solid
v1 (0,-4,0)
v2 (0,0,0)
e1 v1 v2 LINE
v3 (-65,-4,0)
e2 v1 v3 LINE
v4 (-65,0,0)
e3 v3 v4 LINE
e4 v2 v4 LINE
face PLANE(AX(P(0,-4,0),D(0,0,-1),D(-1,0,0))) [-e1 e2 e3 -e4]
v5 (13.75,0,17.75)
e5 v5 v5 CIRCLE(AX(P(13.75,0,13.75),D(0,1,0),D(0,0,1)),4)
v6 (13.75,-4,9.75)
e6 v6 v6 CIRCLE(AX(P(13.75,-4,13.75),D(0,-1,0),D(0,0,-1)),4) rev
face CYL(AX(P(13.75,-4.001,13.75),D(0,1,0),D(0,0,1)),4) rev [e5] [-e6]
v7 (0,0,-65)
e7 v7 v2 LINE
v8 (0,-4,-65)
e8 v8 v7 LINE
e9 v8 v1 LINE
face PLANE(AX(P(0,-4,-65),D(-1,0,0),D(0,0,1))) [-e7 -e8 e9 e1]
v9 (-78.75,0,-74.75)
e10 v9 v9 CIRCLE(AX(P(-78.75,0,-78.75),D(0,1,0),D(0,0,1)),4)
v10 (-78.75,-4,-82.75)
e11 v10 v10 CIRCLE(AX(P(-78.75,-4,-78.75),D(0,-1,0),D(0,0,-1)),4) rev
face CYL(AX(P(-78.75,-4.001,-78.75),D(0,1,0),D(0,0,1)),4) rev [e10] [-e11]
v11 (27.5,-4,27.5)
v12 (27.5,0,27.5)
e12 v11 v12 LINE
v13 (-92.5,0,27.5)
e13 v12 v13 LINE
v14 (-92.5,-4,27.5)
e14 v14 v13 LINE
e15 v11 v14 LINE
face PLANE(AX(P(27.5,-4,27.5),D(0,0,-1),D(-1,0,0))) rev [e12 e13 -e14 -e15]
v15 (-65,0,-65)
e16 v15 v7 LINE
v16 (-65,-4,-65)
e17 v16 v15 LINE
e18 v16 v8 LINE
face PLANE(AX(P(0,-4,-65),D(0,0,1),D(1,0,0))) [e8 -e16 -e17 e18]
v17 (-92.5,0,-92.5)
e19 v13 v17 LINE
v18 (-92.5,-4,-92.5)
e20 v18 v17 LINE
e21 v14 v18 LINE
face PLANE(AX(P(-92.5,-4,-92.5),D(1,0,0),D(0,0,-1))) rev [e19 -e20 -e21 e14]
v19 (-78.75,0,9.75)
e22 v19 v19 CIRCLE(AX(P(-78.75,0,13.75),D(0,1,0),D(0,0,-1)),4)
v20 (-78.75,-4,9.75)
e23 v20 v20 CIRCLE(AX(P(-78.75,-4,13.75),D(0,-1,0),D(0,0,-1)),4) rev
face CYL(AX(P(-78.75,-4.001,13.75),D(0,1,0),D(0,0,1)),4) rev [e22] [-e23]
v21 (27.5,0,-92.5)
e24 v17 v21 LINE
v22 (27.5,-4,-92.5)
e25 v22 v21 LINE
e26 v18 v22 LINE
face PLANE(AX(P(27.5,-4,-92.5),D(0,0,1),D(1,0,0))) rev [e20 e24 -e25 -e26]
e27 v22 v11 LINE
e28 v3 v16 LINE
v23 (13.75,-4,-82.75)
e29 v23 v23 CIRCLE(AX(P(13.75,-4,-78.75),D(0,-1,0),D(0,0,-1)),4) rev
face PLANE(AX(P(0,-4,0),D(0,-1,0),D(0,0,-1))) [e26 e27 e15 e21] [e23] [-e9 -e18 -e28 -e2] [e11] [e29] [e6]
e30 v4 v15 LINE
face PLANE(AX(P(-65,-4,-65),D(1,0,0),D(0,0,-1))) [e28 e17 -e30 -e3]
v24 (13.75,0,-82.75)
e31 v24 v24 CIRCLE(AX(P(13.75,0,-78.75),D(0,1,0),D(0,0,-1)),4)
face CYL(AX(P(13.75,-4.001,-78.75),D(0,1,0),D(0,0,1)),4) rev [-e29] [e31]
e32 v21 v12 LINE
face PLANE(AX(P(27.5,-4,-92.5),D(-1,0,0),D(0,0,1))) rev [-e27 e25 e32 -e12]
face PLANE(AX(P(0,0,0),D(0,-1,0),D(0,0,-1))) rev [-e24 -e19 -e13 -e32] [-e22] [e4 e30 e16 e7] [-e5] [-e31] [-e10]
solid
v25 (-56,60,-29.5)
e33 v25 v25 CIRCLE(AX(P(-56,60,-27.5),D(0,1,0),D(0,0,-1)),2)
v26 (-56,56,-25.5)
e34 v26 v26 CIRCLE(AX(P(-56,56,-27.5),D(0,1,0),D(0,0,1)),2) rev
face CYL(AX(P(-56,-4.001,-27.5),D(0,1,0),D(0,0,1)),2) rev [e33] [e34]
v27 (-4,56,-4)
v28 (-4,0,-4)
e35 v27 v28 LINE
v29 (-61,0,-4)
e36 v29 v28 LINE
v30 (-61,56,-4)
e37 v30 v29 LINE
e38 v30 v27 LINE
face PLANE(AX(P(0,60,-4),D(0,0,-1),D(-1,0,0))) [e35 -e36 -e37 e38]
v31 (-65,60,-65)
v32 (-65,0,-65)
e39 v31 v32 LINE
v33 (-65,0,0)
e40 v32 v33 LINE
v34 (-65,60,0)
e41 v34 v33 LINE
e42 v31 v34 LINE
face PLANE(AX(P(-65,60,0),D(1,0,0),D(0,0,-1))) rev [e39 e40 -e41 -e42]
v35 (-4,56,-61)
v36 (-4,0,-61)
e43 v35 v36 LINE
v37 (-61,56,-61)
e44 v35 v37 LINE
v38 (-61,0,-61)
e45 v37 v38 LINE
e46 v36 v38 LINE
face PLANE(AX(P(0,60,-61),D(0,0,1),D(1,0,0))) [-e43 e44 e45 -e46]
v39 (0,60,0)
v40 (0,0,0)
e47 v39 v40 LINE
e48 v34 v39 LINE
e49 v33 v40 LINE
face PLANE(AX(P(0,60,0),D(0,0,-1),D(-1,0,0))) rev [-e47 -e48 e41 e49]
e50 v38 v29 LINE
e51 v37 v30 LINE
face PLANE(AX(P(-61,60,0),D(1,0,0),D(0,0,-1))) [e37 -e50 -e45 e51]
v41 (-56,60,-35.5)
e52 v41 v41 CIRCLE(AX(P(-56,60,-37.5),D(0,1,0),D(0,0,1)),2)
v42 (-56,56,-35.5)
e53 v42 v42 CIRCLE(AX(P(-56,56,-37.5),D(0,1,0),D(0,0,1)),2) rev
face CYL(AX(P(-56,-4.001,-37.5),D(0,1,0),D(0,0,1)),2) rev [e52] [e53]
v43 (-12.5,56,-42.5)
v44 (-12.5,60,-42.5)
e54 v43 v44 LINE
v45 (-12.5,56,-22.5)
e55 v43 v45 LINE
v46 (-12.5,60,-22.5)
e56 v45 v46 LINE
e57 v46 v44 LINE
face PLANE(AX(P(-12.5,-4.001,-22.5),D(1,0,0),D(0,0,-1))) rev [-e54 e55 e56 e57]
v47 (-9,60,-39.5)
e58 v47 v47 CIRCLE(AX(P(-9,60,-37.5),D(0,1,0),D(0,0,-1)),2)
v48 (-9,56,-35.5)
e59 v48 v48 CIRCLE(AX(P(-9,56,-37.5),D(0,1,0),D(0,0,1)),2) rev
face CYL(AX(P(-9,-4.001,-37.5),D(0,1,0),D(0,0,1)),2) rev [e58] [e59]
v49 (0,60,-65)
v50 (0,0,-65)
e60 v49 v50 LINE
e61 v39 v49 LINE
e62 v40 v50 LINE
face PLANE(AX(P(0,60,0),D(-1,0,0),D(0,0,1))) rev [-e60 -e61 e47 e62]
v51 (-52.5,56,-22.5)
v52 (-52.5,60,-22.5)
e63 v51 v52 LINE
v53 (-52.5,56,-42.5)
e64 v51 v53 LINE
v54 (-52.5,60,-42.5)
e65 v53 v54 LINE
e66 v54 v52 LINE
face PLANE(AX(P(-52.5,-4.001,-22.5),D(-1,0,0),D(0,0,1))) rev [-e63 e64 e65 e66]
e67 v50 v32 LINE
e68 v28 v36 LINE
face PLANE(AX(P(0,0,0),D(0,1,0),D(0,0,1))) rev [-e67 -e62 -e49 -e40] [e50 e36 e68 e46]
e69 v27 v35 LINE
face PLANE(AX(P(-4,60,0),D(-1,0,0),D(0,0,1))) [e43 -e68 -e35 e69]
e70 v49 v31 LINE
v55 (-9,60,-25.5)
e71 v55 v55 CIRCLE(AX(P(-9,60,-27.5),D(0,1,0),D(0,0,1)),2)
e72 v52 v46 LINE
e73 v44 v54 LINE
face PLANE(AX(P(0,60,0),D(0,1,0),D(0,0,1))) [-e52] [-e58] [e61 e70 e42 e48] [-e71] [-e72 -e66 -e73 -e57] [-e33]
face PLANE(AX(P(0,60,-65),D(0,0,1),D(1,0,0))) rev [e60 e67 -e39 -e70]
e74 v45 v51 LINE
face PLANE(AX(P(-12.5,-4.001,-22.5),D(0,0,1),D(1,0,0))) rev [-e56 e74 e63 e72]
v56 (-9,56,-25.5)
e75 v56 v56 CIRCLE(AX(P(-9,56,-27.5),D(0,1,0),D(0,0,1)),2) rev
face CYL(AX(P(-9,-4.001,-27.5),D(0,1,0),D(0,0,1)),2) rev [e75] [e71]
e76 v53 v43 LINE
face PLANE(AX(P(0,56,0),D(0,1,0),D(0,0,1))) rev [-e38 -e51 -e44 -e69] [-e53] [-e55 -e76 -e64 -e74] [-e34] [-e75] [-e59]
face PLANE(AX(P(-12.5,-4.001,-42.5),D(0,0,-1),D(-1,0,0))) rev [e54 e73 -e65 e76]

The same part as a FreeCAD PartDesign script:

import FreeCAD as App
import Part
import Sketcher

V = App.Vector
Q = App.Units.Quantity


def faces_at(feature, points):
    """Names of the faces that lie closest to the given points."""
    faces = feature.Shape.Faces
    near = lambda p: min(range(len(faces)), key=lambda i: faces[i].distToShape(Part.Vertex(*p))[0])
    return sorted({f"Face{near(p) + 1}" for p in points})

doc = App.newDocument("Part")
body = doc.addObject("PartDesign::Body", "Body")

sketch1 = body.newObject("Sketcher::SketchObject", "Sketch")
sketch1.AttachmentSupport = (doc.getObject("XZ_Plane"), [""])
sketch1.MapMode = "FlatFace"
sketch1.addGeometry([
    Part.LineSegment(V(-65, -65, 0), V(-65, 0, 0)),
    Part.LineSegment(V(-65, 0, 0), V(0, 0, 0)),
    Part.LineSegment(V(0, 0, 0), V(0, -65, 0)),
    Part.LineSegment(V(0, -65, 0), V(-65, -65, 0)),
], False)
sketch1.addConstraint([
    Sketcher.Constraint("Coincident", 0, 2, 1, 1),
    Sketcher.Constraint("Coincident", 1, 2, 2, 1),
    Sketcher.Constraint("Coincident", 2, 2, 3, 1),
    Sketcher.Constraint("Coincident", 3, 2, 0, 1),
    Sketcher.Constraint("Vertical", 0),
    Sketcher.Constraint("Horizontal", 1),
    Sketcher.Constraint("Vertical", 2),
    Sketcher.Constraint("Horizontal", 3),
    Sketcher.Constraint("Coincident", 1, 2, -1, 1),
    Sketcher.Constraint("Equal", 3, 0),
    Sketcher.Constraint("DistanceX", 1, 1, 1, 2, Q("65 mm")),
])
pad1 = body.newObject("PartDesign::Pad", "Pad")
pad1.Profile = sketch1
pad1.Length = 60
pad1.Reversed = True
doc.recompute()

thickness = body.newObject("PartDesign::Thickness", "Thickness")
thickness.Base = (pad1, faces_at(pad1, [(-32.5, 0, -32.5)]))
thickness.Value = 4
thickness.Reversed = True
thickness.Join = "Intersection"

sketch2 = body.newObject("Sketcher::SketchObject", "Sketch001")
sketch2.AttachmentSupport = (doc.getObject("XZ_Plane"), [""])
sketch2.MapMode = "FlatFace"
sketch2.AttachmentOffset = App.Placement(V(0, 0, -60), App.Rotation())
sketch2.addGeometry([
    Part.Circle(V(-56, -37.5, 0), V(0, 0, 1), 2),
    Part.Circle(V(-56, -27.5, 0), V(0, 0, 1), 2),
    Part.Circle(V(-9, -27.5, 0), V(0, 0, 1), 2),
    Part.Circle(V(-9, -37.5, 0), V(0, 0, 1), 2),
    Part.LineSegment(V(-52.5, -42.5, 0), V(-52.5, -22.5, 0)),
    Part.LineSegment(V(-52.5, -22.5, 0), V(-12.5, -22.5, 0)),
    Part.LineSegment(V(-12.5, -22.5, 0), V(-12.5, -42.5, 0)),
    Part.LineSegment(V(-12.5, -42.5, 0), V(-52.5, -42.5, 0)),
], False)
sketch2.addConstraint([
    Sketcher.Constraint("Coincident", 4, 2, 5, 1),
    Sketcher.Constraint("Coincident", 5, 2, 6, 1),
    Sketcher.Constraint("Coincident", 6, 2, 7, 1),
    Sketcher.Constraint("Coincident", 7, 2, 4, 1),
    Sketcher.Constraint("Vertical", 4),
    Sketcher.Constraint("Horizontal", 5),
    Sketcher.Constraint("Vertical", 6),
    Sketcher.Constraint("Horizontal", 7),
    Sketcher.Constraint("Equal", 0, 1),
    Sketcher.Constraint("Equal", 1, 2),
    Sketcher.Constraint("Equal", 2, 3),
    Sketcher.Constraint("Horizontal", 1, 3, 2, 3),
    Sketcher.Constraint("Horizontal", 0, 3, 3, 3),
    Sketcher.Constraint("Vertical", 0, 3, 1, 3),
    Sketcher.Constraint("Vertical", 2, 3, 3, 3),
    Sketcher.Constraint("Diameter", 0, Q("4 mm")),
    Sketcher.Constraint("DistanceX", 5, 1, 5, 2, Q("40 mm")),
    Sketcher.Constraint("DistanceY", 4, 1, 4, 2, Q("20 mm")),
    Sketcher.Constraint("DistanceX", 0, 3, -1, 1, Q("56 mm")),
    Sketcher.Constraint("DistanceX", 2, 3, -1, 1, Q("9 mm")),
    Sketcher.Constraint("DistanceY", 0, 3, 1, 3, Q("10 mm")),
    Sketcher.Constraint("DistanceY", 1, 3, 4, 2, Q("5 mm")),
    Sketcher.Constraint("DistanceY", 0, 3, -1, 1, Q("37.5 mm")),
    Sketcher.Constraint("DistanceX", 4, 2, -1, 1, Q("52.5 mm")),
])
pocket1 = body.newObject("PartDesign::Pocket", "Pocket")
pocket1.Profile = sketch2
pocket1.Length = 4
pocket1.Reversed = True
body2 = doc.addObject("PartDesign::Body", "Body001")

sketch3 = body2.newObject("Sketcher::SketchObject", "Sketch002")
sketch3.AttachmentSupport = (doc.getObject("XZ_Plane001"), [""])
sketch3.MapMode = "FlatFace"
sketch3.addGeometry([
    Part.LineSegment(V(-92, 28, 0), V(-92, -92, 0)),
    Part.LineSegment(V(-92, -92, 0), V(28, -92, 0)),
    Part.LineSegment(V(28, -92, 0), V(28, 28, 0)),
    Part.LineSegment(V(28, 28, 0), V(-92, 28, 0)),
    Part.LineSegment(V(0, -65, 0), V(-65, -65, 0)),
    Part.LineSegment(V(-65, -65, 0), V(-65, 0, 0)),
    Part.LineSegment(V(-65, 0, 0), V(0, 0, 0)),
    Part.LineSegment(V(0, 0, 0), V(0, -65, 0)),
], False)
sketch3.addConstraint([
    Sketcher.Constraint("Coincident", 0, 2, 1, 1),
    Sketcher.Constraint("Coincident", 1, 2, 2, 1),
    Sketcher.Constraint("Coincident", 2, 2, 3, 1),
    Sketcher.Constraint("Coincident", 3, 2, 0, 1),
    Sketcher.Constraint("Coincident", 4, 2, 5, 1),
    Sketcher.Constraint("Coincident", 5, 2, 6, 1),
    Sketcher.Constraint("Coincident", 6, 2, 7, 1),
    Sketcher.Constraint("Coincident", 7, 2, 4, 1),
    Sketcher.Constraint("Vertical", 0),
    Sketcher.Constraint("Horizontal", 1),
    Sketcher.Constraint("Vertical", 2),
    Sketcher.Constraint("Horizontal", 3),
    Sketcher.Constraint("Horizontal", 4),
    Sketcher.Constraint("Vertical", 5),
    Sketcher.Constraint("Horizontal", 6),
    Sketcher.Constraint("Vertical", 7),
    Sketcher.Constraint("Coincident", 6, 2, -1, 1),
    Sketcher.Constraint("Equal", 3, 0),
    Sketcher.Constraint("Equal", 6, 5),
    Sketcher.Constraint("DistanceX", 1, 1, 1, 2, Q("120 mm")),
    Sketcher.Constraint("DistanceX", 4, 2, 4, 1, Q("65 mm")),
    Sketcher.Constraint("DistanceX", 0, 2, -1, 1, Q("92.5 mm")),
    Sketcher.Constraint("DistanceY", 0, 2, -1, 1, Q("92.5 mm")),
])
pad2 = body2.newObject("PartDesign::Pad", "Pad001")
pad2.Profile = sketch3
pad2.Length = 4

sketch4 = body2.newObject("Sketcher::SketchObject", "Sketch003")
sketch4.AttachmentSupport = (doc.getObject("XZ_Plane001"), [""])
sketch4.MapMode = "FlatFace"
sketch4.addGeometry([
    Part.Circle(V(-78.8, -78.8, 0), V(0, 0, 1), 4),
    Part.Circle(V(-78.8, 13.8, 0), V(0, 0, 1), 4),
    Part.Circle(V(13.8, 13.8, 0), V(0, 0, 1), 4),
    Part.Circle(V(13.8, -78.8, 0), V(0, 0, 1), 4),
], False)
sketch4.addConstraint([
    Sketcher.Constraint("Equal", 0, 1),
    Sketcher.Constraint("Equal", 1, 2),
    Sketcher.Constraint("Equal", 2, 3),
    Sketcher.Constraint("Horizontal", 1, 3, 2, 3),
    Sketcher.Constraint("Horizontal", 0, 3, 3, 3),
    Sketcher.Constraint("Vertical", 0, 3, 1, 3),
    Sketcher.Constraint("Vertical", 2, 3, 3, 3),
    Sketcher.Constraint("Diameter", 0, Q("8 mm")),
    Sketcher.Constraint("DistanceY", 0, 3, 1, 3, Q("92.5 mm")),
    Sketcher.Constraint("DistanceX", 1, 3, 2, 3, Q("92.5 mm")),
    Sketcher.Constraint("DistanceX", 0, 3, -1, 1, Q("78.75 mm")),
    Sketcher.Constraint("DistanceY", 0, 3, -1, 1, Q("78.75 mm")),
])
pocket2 = body2.newObject("PartDesign::Pocket", "Pocket001")
pocket2.Profile = sketch4
pocket2.Length = 4
pocket2.Reversed = True

doc.recompute()
